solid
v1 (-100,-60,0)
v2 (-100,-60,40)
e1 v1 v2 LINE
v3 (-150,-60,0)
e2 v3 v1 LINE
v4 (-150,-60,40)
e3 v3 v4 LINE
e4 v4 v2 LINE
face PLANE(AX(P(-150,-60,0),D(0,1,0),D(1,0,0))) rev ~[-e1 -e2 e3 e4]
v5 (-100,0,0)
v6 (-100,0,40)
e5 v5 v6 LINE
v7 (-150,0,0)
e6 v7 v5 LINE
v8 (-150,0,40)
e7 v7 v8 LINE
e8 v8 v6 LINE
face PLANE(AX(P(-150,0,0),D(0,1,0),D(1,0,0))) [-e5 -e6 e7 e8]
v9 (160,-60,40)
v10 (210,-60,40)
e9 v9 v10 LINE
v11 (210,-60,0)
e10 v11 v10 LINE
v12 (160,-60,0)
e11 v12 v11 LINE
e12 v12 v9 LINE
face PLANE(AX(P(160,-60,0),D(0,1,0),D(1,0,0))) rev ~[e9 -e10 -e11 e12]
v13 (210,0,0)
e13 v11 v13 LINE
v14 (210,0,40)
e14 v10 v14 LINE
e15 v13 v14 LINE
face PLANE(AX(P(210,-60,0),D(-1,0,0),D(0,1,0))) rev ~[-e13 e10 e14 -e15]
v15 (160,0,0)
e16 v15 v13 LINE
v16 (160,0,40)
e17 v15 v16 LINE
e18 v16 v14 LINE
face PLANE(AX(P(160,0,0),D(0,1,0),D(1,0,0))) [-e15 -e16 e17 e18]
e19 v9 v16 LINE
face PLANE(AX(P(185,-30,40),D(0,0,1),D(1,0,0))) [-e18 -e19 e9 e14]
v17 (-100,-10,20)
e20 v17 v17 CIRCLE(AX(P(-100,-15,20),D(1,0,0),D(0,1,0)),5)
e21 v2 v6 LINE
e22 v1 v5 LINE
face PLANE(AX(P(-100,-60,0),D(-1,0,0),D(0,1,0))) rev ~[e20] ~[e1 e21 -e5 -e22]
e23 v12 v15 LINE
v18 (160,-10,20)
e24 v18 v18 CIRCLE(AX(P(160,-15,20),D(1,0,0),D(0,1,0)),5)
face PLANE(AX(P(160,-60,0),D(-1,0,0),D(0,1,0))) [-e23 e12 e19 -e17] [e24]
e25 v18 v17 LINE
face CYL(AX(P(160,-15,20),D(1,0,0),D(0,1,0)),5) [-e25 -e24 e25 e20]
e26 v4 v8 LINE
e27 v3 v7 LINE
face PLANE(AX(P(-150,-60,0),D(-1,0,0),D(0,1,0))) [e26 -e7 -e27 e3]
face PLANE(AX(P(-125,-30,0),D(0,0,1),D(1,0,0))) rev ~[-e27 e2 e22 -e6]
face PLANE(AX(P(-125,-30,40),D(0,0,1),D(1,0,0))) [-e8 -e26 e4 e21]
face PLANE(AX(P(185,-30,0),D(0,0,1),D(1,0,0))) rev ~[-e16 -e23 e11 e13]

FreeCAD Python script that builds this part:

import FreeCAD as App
import Part
import Sketcher

V = App.Vector


def add_polygon(sketch, points):
    """Adds a closed chain of lines whose ends are joined by coincident constraints."""
    first, n = sketch.GeometryCount, len(points)
    for a, b in zip(points, points[1:] + points[:1]):
        sketch.addGeometry(Part.LineSegment(App.Vector(*a, 0), App.Vector(*b, 0)), False)
    for i in range(n):
        sketch.addConstraint(Sketcher.Constraint("Coincident", first + i, 2, first + (i + 1) % n, 1))

doc = App.newDocument("Part")
body = doc.addObject("PartDesign::Body", "Body")

# Sketch on XY plane
sketch1 = body.newObject("Sketcher::SketchObject", "Sketch")
sketch1.AttachmentSupport = (doc.getObject("XY_Plane"), [""])
sketch1.MapMode = "FlatFace"
add_polygon(sketch1, [(-150, 0), (-150, -60), (-100, -60), (-100, 0)])  # lines 0-3
sketch1.addConstraint(Sketcher.Constraint("Vertical", 0))
sketch1.addConstraint(Sketcher.Constraint("Horizontal", 1))
sketch1.addConstraint(Sketcher.Constraint("Vertical", 2))
sketch1.addConstraint(Sketcher.Constraint("Horizontal", 3))
sketch1.addConstraint(Sketcher.Constraint("PointOnObject", 2, 2, -1))
sketch1.addConstraint(Sketcher.Constraint("DistanceX", 1, 1, 1, 2, 50.0))
sketch1.addConstraint(Sketcher.Constraint("DistanceY", 0, 2, 0, 1, 60.0))
sketch1.addConstraint(Sketcher.Constraint("DistanceX", 0, 2, -1, 1, 150.0))
pad1 = body.newObject("PartDesign::Pad", "Pad")
pad1.Profile = sketch1
pad1.Length = 40
body2 = doc.addObject("PartDesign::Body", "Body001")

# Sketch on XY plane
sketch2 = body2.newObject("Sketcher::SketchObject", "Sketch001")
sketch2.AttachmentSupport = (doc.getObject("XY_Plane001"), [""])
sketch2.MapMode = "FlatFace"
add_polygon(sketch2, [(160, 0), (160, -60), (210, -60), (210, 0)])  # lines 0-3
sketch2.addConstraint(Sketcher.Constraint("Vertical", 0))
sketch2.addConstraint(Sketcher.Constraint("Horizontal", 1))
sketch2.addConstraint(Sketcher.Constraint("Vertical", 2))
sketch2.addConstraint(Sketcher.Constraint("Horizontal", 3))
sketch2.addConstraint(Sketcher.Constraint("PointOnObject", 2, 2, -1))
sketch2.addConstraint(Sketcher.Constraint("DistanceX", 1, 1, 1, 2, 50.0))
sketch2.addConstraint(Sketcher.Constraint("DistanceY", 0, 2, 0, 1, 60.0))
sketch2.addConstraint(Sketcher.Constraint("DistanceX", -1, 1, 0, 2, 160.0))
pad2 = body2.newObject("PartDesign::Pad", "Pad001")
pad2.Profile = sketch2
pad2.Length = 40
body.AllowCompound = True
doc.recompute()

boolean = body.newObject("PartDesign::Boolean", "Boolean")
boolean.Type = "Fuse"
boolean.addObjects([body2])

# Sketch on YZ plane
sketch3 = body.newObject("Sketcher::SketchObject", "Sketch002")
sketch3.AttachmentSupport = (doc.getObject("YZ_Plane"), [""])
sketch3.MapMode = "FlatFace"
sketch3.AttachmentOffset = App.Placement(V(0, 0, 160), App.Rotation())
sketch3.addGeometry(Part.Circle(V(-15, 20, 0), V(0, 0, 1), 5), False)
sketch3.addConstraint(Sketcher.Constraint("Diameter", 0, 10.0))
sketch3.addConstraint(Sketcher.Constraint("DistanceX", 0, 3, -1, 1, 15.0))
sketch3.addConstraint(Sketcher.Constraint("DistanceY", -1, 1, 0, 3, 20.0))
pad3 = body.newObject("PartDesign::Pad", "Pad002")
pad3.Profile = sketch3
pad3.Length = 260
pad3.Reversed = True

doc.recompute()
